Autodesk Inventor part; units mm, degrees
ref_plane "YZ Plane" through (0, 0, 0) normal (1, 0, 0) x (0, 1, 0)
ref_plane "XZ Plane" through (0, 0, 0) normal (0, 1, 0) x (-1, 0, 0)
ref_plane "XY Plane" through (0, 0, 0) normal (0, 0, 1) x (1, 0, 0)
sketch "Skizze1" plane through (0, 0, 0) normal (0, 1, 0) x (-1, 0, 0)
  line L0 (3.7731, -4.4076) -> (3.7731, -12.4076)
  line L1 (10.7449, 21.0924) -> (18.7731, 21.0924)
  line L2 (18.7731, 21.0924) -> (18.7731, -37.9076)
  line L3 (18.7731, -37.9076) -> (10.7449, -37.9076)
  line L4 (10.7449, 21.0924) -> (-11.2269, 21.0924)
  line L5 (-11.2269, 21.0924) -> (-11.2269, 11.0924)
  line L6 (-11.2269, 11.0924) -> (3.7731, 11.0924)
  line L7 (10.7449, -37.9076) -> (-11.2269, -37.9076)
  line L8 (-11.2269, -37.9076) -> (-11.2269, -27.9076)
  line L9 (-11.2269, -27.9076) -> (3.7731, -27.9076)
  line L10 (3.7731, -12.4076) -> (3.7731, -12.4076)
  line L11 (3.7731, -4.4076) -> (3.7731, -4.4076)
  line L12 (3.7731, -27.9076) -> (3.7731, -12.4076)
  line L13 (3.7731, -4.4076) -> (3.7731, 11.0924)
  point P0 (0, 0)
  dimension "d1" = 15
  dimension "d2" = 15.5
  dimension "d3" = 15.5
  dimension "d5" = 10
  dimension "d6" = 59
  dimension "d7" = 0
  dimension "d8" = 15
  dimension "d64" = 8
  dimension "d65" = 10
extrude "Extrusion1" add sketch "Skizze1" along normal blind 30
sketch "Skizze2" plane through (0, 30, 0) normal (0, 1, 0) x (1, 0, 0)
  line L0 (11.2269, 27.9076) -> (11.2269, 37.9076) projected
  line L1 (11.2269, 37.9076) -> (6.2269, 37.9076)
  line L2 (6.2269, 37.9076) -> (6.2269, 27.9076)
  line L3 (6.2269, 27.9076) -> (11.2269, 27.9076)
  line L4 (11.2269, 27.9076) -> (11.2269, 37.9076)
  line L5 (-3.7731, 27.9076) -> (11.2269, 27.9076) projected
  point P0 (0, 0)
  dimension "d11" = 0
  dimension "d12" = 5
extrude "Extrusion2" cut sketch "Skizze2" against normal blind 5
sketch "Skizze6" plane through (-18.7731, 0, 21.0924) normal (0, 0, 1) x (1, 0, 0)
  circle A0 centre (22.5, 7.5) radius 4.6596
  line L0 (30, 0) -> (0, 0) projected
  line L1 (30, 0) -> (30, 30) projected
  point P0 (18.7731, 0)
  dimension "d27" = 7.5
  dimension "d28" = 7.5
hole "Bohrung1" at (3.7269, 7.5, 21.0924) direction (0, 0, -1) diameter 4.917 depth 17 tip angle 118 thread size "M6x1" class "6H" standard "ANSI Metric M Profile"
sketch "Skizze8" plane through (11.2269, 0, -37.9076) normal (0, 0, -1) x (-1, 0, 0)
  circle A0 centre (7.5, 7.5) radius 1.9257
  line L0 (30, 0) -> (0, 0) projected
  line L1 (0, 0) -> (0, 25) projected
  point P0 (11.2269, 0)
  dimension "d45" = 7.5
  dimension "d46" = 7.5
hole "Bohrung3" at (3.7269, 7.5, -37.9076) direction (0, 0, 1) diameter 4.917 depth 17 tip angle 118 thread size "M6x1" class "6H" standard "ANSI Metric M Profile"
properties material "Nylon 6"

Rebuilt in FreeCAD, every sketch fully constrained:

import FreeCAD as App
import Part
import Sketcher


def add_polygon(sketch, points):
    """Adds a closed chain of lines whose ends are joined by coincident constraints."""
    first, n = sketch.GeometryCount, len(points)
    for a, b in zip(points, points[1:] + points[:1]):
        sketch.addGeometry(Part.LineSegment(App.Vector(*a, 0), App.Vector(*b, 0)), False)
    for i in range(n):
        sketch.addConstraint(Sketcher.Constraint("Coincident", first + i, 2, first + (i + 1) % n, 1))

doc = App.newDocument("Part")
body = doc.addObject("PartDesign::Body", "Body")

# Sketch on XZ plane
sketch1 = doc.addObject("Sketcher::SketchObject", "Sketch")
body.addObject(sketch1)
sketch1.AttachmentSupport = (doc.XZ_Plane, [""])
sketch1.MapMode = "FlatFace"
add_polygon(sketch1, [(-4, 11), (-4, -28), (11, -28), (11, -38), (-19, -38), (-19, 21), (11, 21), (11, 11)])  # lines 0-7
sketch1.addConstraint([
    Sketcher.Constraint("Vertical", 0),
    Sketcher.Constraint("Horizontal", 1),
    Sketcher.Constraint("Vertical", 2),
    Sketcher.Constraint("Horizontal", 3),
    Sketcher.Constraint("Vertical", 4),
    Sketcher.Constraint("Horizontal", 5),
    Sketcher.Constraint("Vertical", 6),
    Sketcher.Constraint("Horizontal", 7),
    Sketcher.Constraint("Vertical", 2, 2, 5, 2),
    Sketcher.Constraint("Equal", 2, 6),
    Sketcher.Constraint("DistanceX", 1, 1, 1, 2, 15.0),
    Sketcher.Constraint("DistanceY", 2, 2, 2, 1, 10.0),
    Sketcher.Constraint("DistanceY", 4, 1, 4, 2, 59.0),
    Sketcher.Constraint("DistanceX", 3, 2, 0, 2, 15.0),
    Sketcher.Constraint("DistanceX", 0, 2, -1, 1, 3.773),
    Sketcher.Constraint("DistanceY", 0, 2, -1, 1, 27.9076),
])
pad1 = doc.addObject("PartDesign::Pad", "Pad")
body.addObject(pad1)
pad1.Profile = sketch1
pad1.Length = 30
pad1.Reversed = True

# Sketch on XZ plane
sketch2 = doc.addObject("Sketcher::SketchObject", "Sketch001")
body.addObject(sketch2)
sketch2.AttachmentSupport = (doc.XZ_Plane, [""])
sketch2.MapMode = "FlatFace"
sketch2.AttachmentOffset = App.Placement(App.Vector(0, 0, -30), App.Rotation())
add_polygon(sketch2, [(6, -28), (11, -28), (11, -38), (6, -38)])  # lines 0-3
sketch2.addConstraint([
    Sketcher.Constraint("Horizontal", 0),
    Sketcher.Constraint("Vertical", 1),
    Sketcher.Constraint("Horizontal", 2),
    Sketcher.Constraint("Vertical", 3),
    Sketcher.Constraint("DistanceX", 0, 1, 0, 2, 5.0),
    Sketcher.Constraint("DistanceY", 1, 2, 1, 1, 10.0),
    Sketcher.Constraint("DistanceX", -1, 1, 0, 2, 11.227),
    Sketcher.Constraint("DistanceY", 0, 2, -1, 1, 27.9076),
])
pocket1 = doc.addObject("PartDesign::Pocket", "Pocket")
body.addObject(pocket1)
pocket1.Profile = sketch2
pocket1.Length = 5
pocket1.Reversed = True

# Sketch on XY plane
sketch3 = doc.addObject("Sketcher::SketchObject", "Sketch002")
body.addObject(sketch3)
sketch3.AttachmentSupport = (doc.XY_Plane, [""])
sketch3.MapMode = "FlatFace"
sketch3.AttachmentOffset = App.Placement(App.Vector(0, 0, 21.0924), App.Rotation())
sketch3.addGeometry(Part.Circle(App.Vector(3.7, 7.5, 0), App.Vector(0, 0, 1), 2.5), False)
sketch3.addConstraint([
    Sketcher.Constraint("Diameter", 0, 4.917),
    Sketcher.Constraint("DistanceY", -1, 1, 0, 3, 7.5),
    Sketcher.Constraint("DistanceX", -1, 1, 0, 3, 3.727),
])
doc.recompute()
hole = doc.addObject("PartDesign::Hole", "Hole")
body.addObject(hole)
hole.Profile = sketch3
hole.ThreadType = "None"
hole.Diameter = 4.917
hole.DepthType = "Dimension"
hole.Depth = 17
hole.DrillPoint = "Angled"
hole.DrillPointAngle = 118

# Sketch on XY plane
sketch4 = doc.addObject("Sketcher::SketchObject", "Sketch003")
body.addObject(sketch4)
sketch4.AttachmentSupport = (doc.XY_Plane, [""])
sketch4.MapMode = "FlatFace"
sketch4.AttachmentOffset = App.Placement(App.Vector(0, 0, -37.9076), App.Rotation())
sketch4.addGeometry(Part.Circle(App.Vector(3.7, 7.5, 0), App.Vector(0, 0, 1), 2.5), False)
sketch4.addConstraint([
    Sketcher.Constraint("Diameter", 0, 4.917),
    Sketcher.Constraint("DistanceY", -1, 1, 0, 3, 7.5),
    Sketcher.Constraint("DistanceX", -1, 1, 0, 3, 3.727),
])
doc.recompute()
hole2 = doc.addObject("PartDesign::Hole", "Hole001")
body.addObject(hole2)
hole2.Profile = sketch4
hole2.ThreadType = "None"
hole2.Diameter = 4.917
hole2.DepthType = "Dimension"
hole2.Depth = 17
hole2.DrillPoint = "Angled"
hole2.DrillPointAngle = 118
hole2.Reversed = True

doc.recompute()
